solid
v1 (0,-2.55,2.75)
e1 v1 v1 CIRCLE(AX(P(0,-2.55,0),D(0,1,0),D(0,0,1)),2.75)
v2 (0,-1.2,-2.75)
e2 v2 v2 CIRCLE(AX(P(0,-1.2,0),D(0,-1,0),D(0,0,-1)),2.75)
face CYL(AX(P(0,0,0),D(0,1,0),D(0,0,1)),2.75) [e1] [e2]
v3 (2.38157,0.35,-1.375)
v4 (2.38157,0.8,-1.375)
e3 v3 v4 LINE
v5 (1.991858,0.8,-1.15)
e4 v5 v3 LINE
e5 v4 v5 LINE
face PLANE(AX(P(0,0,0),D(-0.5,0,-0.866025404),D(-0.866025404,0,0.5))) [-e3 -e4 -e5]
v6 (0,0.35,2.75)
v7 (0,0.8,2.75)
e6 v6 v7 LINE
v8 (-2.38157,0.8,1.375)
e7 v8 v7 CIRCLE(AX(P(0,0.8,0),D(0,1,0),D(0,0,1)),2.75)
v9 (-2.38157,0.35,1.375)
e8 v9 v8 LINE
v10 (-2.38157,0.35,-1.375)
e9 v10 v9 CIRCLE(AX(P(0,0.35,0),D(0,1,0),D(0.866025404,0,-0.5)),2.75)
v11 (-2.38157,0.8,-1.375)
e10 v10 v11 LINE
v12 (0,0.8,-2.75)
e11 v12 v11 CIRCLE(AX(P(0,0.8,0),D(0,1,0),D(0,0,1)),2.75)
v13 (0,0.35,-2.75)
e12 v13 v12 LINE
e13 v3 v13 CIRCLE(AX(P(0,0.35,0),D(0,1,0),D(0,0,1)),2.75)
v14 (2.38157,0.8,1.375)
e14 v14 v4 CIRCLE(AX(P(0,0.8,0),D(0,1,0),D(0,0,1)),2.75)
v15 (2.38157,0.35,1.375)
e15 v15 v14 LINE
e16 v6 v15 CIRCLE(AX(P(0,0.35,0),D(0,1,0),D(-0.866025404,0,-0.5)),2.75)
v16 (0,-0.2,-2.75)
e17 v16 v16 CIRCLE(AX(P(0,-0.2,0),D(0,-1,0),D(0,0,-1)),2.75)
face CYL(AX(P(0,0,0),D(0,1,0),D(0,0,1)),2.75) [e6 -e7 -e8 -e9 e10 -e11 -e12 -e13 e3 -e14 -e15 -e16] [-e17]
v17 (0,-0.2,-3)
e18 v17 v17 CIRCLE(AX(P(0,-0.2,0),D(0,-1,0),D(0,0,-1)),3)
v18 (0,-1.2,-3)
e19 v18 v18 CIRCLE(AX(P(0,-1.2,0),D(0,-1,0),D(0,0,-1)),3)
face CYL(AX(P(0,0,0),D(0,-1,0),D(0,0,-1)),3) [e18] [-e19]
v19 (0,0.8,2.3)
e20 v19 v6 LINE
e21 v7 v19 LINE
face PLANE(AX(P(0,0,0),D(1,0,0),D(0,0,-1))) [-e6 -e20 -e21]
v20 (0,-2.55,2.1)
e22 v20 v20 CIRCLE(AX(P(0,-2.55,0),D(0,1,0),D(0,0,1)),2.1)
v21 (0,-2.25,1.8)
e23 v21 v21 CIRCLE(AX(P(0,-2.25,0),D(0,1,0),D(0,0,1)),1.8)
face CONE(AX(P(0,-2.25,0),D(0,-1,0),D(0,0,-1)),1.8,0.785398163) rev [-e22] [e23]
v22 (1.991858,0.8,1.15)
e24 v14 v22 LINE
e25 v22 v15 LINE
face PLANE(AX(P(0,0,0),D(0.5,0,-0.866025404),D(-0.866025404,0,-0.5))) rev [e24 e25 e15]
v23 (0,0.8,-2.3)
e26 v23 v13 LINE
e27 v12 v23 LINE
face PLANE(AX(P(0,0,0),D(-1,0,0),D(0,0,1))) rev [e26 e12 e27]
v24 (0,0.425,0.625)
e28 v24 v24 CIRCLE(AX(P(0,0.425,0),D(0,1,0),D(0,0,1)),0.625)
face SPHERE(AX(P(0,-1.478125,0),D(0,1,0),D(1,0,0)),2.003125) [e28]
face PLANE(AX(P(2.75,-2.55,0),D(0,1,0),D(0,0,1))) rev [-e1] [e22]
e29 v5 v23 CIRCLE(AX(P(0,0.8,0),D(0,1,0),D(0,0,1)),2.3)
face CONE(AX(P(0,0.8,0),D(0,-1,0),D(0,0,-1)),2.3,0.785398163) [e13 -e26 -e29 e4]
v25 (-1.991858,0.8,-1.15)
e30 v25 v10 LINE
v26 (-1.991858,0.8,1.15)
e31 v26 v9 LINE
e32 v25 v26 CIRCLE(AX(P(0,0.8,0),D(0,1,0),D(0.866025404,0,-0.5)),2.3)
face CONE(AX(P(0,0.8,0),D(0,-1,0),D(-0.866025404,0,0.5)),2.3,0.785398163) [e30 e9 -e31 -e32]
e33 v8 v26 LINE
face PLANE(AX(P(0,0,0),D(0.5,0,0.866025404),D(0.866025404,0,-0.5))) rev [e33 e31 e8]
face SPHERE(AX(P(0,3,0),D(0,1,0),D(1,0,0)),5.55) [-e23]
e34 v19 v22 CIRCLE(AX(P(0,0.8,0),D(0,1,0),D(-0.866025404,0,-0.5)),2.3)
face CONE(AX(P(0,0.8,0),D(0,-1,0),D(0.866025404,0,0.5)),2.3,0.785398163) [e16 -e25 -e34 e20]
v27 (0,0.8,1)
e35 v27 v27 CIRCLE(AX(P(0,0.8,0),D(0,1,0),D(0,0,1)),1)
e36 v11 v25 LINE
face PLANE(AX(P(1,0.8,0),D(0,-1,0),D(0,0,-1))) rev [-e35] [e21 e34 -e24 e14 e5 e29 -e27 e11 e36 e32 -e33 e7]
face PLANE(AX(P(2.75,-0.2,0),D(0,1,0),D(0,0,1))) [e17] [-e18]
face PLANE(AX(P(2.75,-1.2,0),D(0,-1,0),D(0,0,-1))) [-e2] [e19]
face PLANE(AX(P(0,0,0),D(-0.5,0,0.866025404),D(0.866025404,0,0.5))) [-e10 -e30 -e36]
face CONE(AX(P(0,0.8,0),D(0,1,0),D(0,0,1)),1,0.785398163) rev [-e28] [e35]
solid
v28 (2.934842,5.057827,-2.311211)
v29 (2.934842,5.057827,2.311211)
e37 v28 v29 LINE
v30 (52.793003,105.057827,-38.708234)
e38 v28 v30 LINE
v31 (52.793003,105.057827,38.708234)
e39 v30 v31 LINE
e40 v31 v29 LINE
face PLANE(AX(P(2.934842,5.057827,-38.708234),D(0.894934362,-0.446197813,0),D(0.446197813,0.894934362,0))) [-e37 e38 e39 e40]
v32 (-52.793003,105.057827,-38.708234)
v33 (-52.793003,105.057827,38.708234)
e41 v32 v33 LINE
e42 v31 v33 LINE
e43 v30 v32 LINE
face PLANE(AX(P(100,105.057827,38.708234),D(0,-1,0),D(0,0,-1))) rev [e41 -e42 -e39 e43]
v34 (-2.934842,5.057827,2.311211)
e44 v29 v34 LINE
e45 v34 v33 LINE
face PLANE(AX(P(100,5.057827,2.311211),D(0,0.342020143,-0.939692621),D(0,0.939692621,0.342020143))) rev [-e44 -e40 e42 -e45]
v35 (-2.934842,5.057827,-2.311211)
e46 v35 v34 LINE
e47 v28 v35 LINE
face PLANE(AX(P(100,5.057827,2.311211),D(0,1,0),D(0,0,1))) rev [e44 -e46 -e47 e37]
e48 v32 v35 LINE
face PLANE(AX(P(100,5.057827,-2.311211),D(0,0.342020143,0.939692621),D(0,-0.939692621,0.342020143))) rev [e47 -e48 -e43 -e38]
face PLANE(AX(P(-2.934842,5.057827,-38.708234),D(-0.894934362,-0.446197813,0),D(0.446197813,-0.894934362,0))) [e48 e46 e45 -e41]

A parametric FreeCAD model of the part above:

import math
import FreeCAD as App
import Part
import Sketcher
from FreeCAD import Vector
Q = App.Units.Quantity


def add_polygon(sketch, points):
    """Adds a closed chain of lines whose ends are joined by coincident constraints."""
    first, n = sketch.GeometryCount, len(points)
    for a, b in zip(points, points[1:] + points[:1]):
        sketch.addGeometry(Part.LineSegment(App.Vector(*a, 0), App.Vector(*b, 0)), False)
    for i in range(n):
        sketch.addConstraint(Sketcher.Constraint("Coincident", first + i, 2, first + (i + 1) % n, 1))

doc = App.newDocument("Part")
body = doc.addObject("PartDesign::Body", "Body")

sketch1 = body.newObject("Sketcher::SketchObject", "Sketch")
sketch1.AttachmentSupport = (doc.getObject("XY_Plane"), [""])
sketch1.MapMode = "FlatFace"
sketch1.addGeometry(Part.LineSegment(Vector(2.75, 0.8, 0), Vector(1, 0.8, 0)), False)
sketch1.addGeometry(Part.LineSegment(Vector(1, 0.8, 0), Vector(0.625, 0.425, 0)), False)
sketch1.addGeometry(Part.ArcOfCircle(Part.Circle(Vector(0, -1.478125, 0), Vector(0, 0, 1), 2.003125), math.radians(71.819446), math.radians(90)), False)
sketch1.addGeometry(Part.LineSegment(Vector(0, 0.525, 0), Vector(0, -2.55, 0)), False)
sketch1.addGeometry(Part.ArcOfCircle(Part.Circle(Vector(0, 3, 0), Vector(0, 0, 1), 5.55), math.radians(-90), math.radians(-71.075356)), False)
sketch1.addGeometry(Part.LineSegment(Vector(1.8, -2.25, 0), Vector(2.1, -2.55, 0)), False)
sketch1.addGeometry(Part.LineSegment(Vector(2.1, -2.55, 0), Vector(2.75, -2.55, 0)), False)
sketch1.addGeometry(Part.LineSegment(Vector(2.75, -2.55, 0), Vector(2.75, 0.8, 0)), False)
sketch1.addConstraint(Sketcher.Constraint("Coincident", 0, 2, 1, 1))
sketch1.addConstraint(Sketcher.Constraint("Coincident", 1, 2, 2, 1))
sketch1.addConstraint(Sketcher.Constraint("Coincident", 2, 2, 3, 1))
sketch1.addConstraint(Sketcher.Constraint("Coincident", 3, 2, 4, 1))
sketch1.addConstraint(Sketcher.Constraint("Coincident", 4, 2, 5, 1))
sketch1.addConstraint(Sketcher.Constraint("Coincident", 5, 2, 6, 1))
sketch1.addConstraint(Sketcher.Constraint("Coincident", 6, 2, 7, 1))
sketch1.addConstraint(Sketcher.Constraint("Coincident", 7, 2, 0, 1))
sketch1.addConstraint(Sketcher.Constraint("Horizontal", 0))
sketch1.addConstraint(Sketcher.Constraint("Vertical", 3))
sketch1.addConstraint(Sketcher.Constraint("Horizontal", 6))
sketch1.addConstraint(Sketcher.Constraint("Vertical", 7))
sketch1.addConstraint(Sketcher.Constraint("PointOnObject", 2, 3, -2))
sketch1.addConstraint(Sketcher.Constraint("PointOnObject", 4, 3, -2))
sketch1.addConstraint(Sketcher.Constraint("PointOnObject", 2, 2, -2))
sketch1.addConstraint(Sketcher.Constraint("Perpendicular", 1, 5))
sketch1.addConstraint(Sketcher.Constraint("Horizontal", 3, 2, 5, 2))
sketch1.addConstraint(Sketcher.Constraint("Angle", 1, Q("-135 deg")))
sketch1.addConstraint(Sketcher.Constraint("Radius", 4, Q("5.55 mm")))
sketch1.addConstraint(Sketcher.Constraint("DistanceY", -1, 1, 4, 3, Q("3 mm")))
sketch1.addConstraint(Sketcher.Constraint("DistanceX", -1, 1, 0, 2, Q("1 mm")))
sketch1.addConstraint(Sketcher.Constraint("DistanceX", 0, 2, 0, 1, Q("1.75 mm")))
sketch1.addConstraint(Sketcher.Constraint("DistanceX", 6, 1, 6, 2, Q("0.65 mm")))
sketch1.addConstraint(Sketcher.Constraint("DistanceY", 7, 1, 7, 2, Q("3.35 mm")))
sketch1.addConstraint(Sketcher.Constraint("DistanceY", 1, 2, 2, 2, Q("0.1 mm")))
sketch1.addConstraint(Sketcher.Constraint("DistanceY", 3, 2, 3, 1, Q("3.075 mm")))
revolution = body.newObject("PartDesign::Revolution", "Revolution")
revolution.Profile = sketch1
revolution.ReferenceAxis = (sketch1, ["V_Axis"])
revolution.Angle = 360

sketch2 = body.newObject("Sketcher::SketchObject", "Sketch001")
sketch2.AttachmentSupport = (doc.getObject("XY_Plane"), [""])
sketch2.MapMode = "FlatFace"
add_polygon(sketch2, [(2.75, -0.2), (2.75, -1.2), (3, -1.2), (3, -0.2)])
sketch2.addConstraint(Sketcher.Constraint("Vertical", 0))
sketch2.addConstraint(Sketcher.Constraint("Horizontal", 1))
sketch2.addConstraint(Sketcher.Constraint("Vertical", 2))
sketch2.addConstraint(Sketcher.Constraint("Horizontal", 3))
sketch2.addConstraint(Sketcher.Constraint("DistanceY", 0, 2, 0, 1, Q("1 mm")))
sketch2.addConstraint(Sketcher.Constraint("DistanceX", -1, 1, 1, 2, Q("3 mm")))
sketch2.addConstraint(Sketcher.Constraint("DistanceX", 1, 1, 1, 2, Q("0.25 mm")))
sketch2.addConstraint(Sketcher.Constraint("DistanceY", 0, 2, -1, 1, Q("1.2 mm")))
revolution2 = body.newObject("PartDesign::Revolution", "Revolution001")
revolution2.Profile = sketch2
revolution2.ReferenceAxis = (sketch2, ["V_Axis"])
revolution2.Angle = 360

sketch3 = body.newObject("Sketcher::SketchObject", "Sketch002")
sketch3.AttachmentSupport = (doc.getObject("YZ_Plane"), [""])
sketch3.MapMode = "FlatFace"
add_polygon(sketch3, [(0.35, -2.75), (0.8, -2.75), (0.8, -2.3)])
sketch3.addConstraint(Sketcher.Constraint("Horizontal", 0))
sketch3.addConstraint(Sketcher.Constraint("Vertical", 1))
sketch3.addConstraint(Sketcher.Constraint("Equal", 0, 1))
sketch3.addConstraint(Sketcher.Constraint("DistanceX", 0, 1, 0, 2, Q("0.45 mm")))
sketch3.addConstraint(Sketcher.Constraint("DistanceX", -1, 1, 0, 2, Q("0.8 mm")))
sketch3.addConstraint(Sketcher.Constraint("DistanceY", 1, 2, -1, 1, Q("2.3 mm")))
groove = body.newObject("PartDesign::Groove", "Groove")
groove.Profile = sketch3
groove.ReferenceAxis = (sketch3, ["H_Axis"])
groove.Angle = 60
groove.Reversed = True
doc.recompute()

polarpattern = body.newObject("PartDesign::PolarPattern", "PolarPattern")
polarpattern.Originals = [groove]
polarpattern.Axis = (doc.getObject("Y_Axis"), [""])
polarpattern.Angle = 360
polarpattern.Occurrences = 3
body.Tip = polarpattern
body2 = doc.addObject("PartDesign::Body", "Body001")

sketch4 = body2.newObject("Sketcher::SketchObject", "Sketch003")
sketch4.AttachmentSupport = (doc.getObject("YZ_Plane001"), [""])
sketch4.MapMode = "FlatFace"
add_polygon(sketch4, [(105.057827, 38.708234), (5.057827, 2.311211), (5.057827, -2.311211), (105.057827, -38.708234)])
sketch4.addConstraint(Sketcher.Constraint("Vertical", 1))
sketch4.addConstraint(Sketcher.Constraint("Vertical", 3))
sketch4.addConstraint(Sketcher.Constraint("Equal", 0, 2))
sketch4.addConstraint(Sketcher.Constraint("Angle", 0, Q("-160 deg")))
sketch4.addConstraint(Sketcher.Constraint("DistanceX", 1, 2, 2, 2, Q("100 mm")))
sketch4.addConstraint(Sketcher.Constraint("DistanceY", 1, 2, 1, 1, Q("4.622422 mm")))
sketch4.addConstraint(Sketcher.Constraint("DistanceY", -1, 1, 0, 2, Q("2.311211 mm")))
sketch4.addConstraint(Sketcher.Constraint("DistanceX", -1, 1, 0, 2, Q("5.057827 mm")))
pad1 = body2.newObject("PartDesign::Pad", "Pad")
pad1.Profile = sketch4
pad1.Length = 200
pad1.Midplane = True

sketch5 = body2.newObject("Sketcher::SketchObject", "Sketch004")
sketch5.AttachmentSupport = (doc.getObject("XY_Plane001"), [""])
sketch5.MapMode = "FlatFace"
add_polygon(sketch5, [(-124.994, 130.052), (-124.994, -27.544), (124.994, -27.544), (124.994, 130.052)])
sketch5.addGeometry(Part.Circle(Vector(0, 0, 0), Vector(0, 0, 1), 5), False)
add_polygon(sketch5, [(2.934842, 5.057827), (-2.934842, 5.057827), (-52.793003, 105.057827), (52.793003, 105.057827)])
sketch5.addConstraint(Sketcher.Constraint("Vertical", 0))
sketch5.addConstraint(Sketcher.Constraint("Horizontal", 1))
sketch5.addConstraint(Sketcher.Constraint("Vertical", 2))
sketch5.addConstraint(Sketcher.Constraint("Horizontal", 3))
sketch5.addConstraint(Sketcher.Constraint("Horizontal", 5))
sketch5.addConstraint(Sketcher.Constraint("Horizontal", 7))
sketch5.addConstraint(Sketcher.Constraint("Coincident", 4, 3, -1, 1))
sketch5.addConstraint(Sketcher.Constraint("Equal", 6, 8))
sketch5.addConstraint(Sketcher.Constraint("Diameter", 4, Q("10 mm")))
sketch5.addConstraint(Sketcher.Constraint("Angle", 6, Q("116.5 deg")))
sketch5.addConstraint(Sketcher.Constraint("DistanceY", 5, 2, 6, 2, Q("100 mm")))
sketch5.addConstraint(Sketcher.Constraint("DistanceX", 1, 1, 1, 2, Q("249.988 mm")))
sketch5.addConstraint(Sketcher.Constraint("DistanceY", 0, 2, 0, 1, Q("157.596 mm")))
sketch5.addConstraint(Sketcher.Constraint("DistanceX", 0, 2, -1, 1, Q("124.994 mm")))
sketch5.addConstraint(Sketcher.Constraint("DistanceY", 0, 2, -1, 1, Q("27.544 mm")))
sketch5.addConstraint(Sketcher.Constraint("DistanceX", 5, 2, 5, 1, Q("5.869684 mm")))
sketch5.addConstraint(Sketcher.Constraint("DistanceX", 5, 2, -1, 1, Q("2.934842 mm")))
sketch5.addConstraint(Sketcher.Constraint("DistanceY", -1, 1, 5, 2, Q("5.057827 mm")))
pocket1 = body2.newObject("PartDesign::Pocket", "Pocket")
pocket1.Profile = sketch5
pocket1.Type = "ThroughAll"
pocket1.Midplane = True

doc.recompute()
